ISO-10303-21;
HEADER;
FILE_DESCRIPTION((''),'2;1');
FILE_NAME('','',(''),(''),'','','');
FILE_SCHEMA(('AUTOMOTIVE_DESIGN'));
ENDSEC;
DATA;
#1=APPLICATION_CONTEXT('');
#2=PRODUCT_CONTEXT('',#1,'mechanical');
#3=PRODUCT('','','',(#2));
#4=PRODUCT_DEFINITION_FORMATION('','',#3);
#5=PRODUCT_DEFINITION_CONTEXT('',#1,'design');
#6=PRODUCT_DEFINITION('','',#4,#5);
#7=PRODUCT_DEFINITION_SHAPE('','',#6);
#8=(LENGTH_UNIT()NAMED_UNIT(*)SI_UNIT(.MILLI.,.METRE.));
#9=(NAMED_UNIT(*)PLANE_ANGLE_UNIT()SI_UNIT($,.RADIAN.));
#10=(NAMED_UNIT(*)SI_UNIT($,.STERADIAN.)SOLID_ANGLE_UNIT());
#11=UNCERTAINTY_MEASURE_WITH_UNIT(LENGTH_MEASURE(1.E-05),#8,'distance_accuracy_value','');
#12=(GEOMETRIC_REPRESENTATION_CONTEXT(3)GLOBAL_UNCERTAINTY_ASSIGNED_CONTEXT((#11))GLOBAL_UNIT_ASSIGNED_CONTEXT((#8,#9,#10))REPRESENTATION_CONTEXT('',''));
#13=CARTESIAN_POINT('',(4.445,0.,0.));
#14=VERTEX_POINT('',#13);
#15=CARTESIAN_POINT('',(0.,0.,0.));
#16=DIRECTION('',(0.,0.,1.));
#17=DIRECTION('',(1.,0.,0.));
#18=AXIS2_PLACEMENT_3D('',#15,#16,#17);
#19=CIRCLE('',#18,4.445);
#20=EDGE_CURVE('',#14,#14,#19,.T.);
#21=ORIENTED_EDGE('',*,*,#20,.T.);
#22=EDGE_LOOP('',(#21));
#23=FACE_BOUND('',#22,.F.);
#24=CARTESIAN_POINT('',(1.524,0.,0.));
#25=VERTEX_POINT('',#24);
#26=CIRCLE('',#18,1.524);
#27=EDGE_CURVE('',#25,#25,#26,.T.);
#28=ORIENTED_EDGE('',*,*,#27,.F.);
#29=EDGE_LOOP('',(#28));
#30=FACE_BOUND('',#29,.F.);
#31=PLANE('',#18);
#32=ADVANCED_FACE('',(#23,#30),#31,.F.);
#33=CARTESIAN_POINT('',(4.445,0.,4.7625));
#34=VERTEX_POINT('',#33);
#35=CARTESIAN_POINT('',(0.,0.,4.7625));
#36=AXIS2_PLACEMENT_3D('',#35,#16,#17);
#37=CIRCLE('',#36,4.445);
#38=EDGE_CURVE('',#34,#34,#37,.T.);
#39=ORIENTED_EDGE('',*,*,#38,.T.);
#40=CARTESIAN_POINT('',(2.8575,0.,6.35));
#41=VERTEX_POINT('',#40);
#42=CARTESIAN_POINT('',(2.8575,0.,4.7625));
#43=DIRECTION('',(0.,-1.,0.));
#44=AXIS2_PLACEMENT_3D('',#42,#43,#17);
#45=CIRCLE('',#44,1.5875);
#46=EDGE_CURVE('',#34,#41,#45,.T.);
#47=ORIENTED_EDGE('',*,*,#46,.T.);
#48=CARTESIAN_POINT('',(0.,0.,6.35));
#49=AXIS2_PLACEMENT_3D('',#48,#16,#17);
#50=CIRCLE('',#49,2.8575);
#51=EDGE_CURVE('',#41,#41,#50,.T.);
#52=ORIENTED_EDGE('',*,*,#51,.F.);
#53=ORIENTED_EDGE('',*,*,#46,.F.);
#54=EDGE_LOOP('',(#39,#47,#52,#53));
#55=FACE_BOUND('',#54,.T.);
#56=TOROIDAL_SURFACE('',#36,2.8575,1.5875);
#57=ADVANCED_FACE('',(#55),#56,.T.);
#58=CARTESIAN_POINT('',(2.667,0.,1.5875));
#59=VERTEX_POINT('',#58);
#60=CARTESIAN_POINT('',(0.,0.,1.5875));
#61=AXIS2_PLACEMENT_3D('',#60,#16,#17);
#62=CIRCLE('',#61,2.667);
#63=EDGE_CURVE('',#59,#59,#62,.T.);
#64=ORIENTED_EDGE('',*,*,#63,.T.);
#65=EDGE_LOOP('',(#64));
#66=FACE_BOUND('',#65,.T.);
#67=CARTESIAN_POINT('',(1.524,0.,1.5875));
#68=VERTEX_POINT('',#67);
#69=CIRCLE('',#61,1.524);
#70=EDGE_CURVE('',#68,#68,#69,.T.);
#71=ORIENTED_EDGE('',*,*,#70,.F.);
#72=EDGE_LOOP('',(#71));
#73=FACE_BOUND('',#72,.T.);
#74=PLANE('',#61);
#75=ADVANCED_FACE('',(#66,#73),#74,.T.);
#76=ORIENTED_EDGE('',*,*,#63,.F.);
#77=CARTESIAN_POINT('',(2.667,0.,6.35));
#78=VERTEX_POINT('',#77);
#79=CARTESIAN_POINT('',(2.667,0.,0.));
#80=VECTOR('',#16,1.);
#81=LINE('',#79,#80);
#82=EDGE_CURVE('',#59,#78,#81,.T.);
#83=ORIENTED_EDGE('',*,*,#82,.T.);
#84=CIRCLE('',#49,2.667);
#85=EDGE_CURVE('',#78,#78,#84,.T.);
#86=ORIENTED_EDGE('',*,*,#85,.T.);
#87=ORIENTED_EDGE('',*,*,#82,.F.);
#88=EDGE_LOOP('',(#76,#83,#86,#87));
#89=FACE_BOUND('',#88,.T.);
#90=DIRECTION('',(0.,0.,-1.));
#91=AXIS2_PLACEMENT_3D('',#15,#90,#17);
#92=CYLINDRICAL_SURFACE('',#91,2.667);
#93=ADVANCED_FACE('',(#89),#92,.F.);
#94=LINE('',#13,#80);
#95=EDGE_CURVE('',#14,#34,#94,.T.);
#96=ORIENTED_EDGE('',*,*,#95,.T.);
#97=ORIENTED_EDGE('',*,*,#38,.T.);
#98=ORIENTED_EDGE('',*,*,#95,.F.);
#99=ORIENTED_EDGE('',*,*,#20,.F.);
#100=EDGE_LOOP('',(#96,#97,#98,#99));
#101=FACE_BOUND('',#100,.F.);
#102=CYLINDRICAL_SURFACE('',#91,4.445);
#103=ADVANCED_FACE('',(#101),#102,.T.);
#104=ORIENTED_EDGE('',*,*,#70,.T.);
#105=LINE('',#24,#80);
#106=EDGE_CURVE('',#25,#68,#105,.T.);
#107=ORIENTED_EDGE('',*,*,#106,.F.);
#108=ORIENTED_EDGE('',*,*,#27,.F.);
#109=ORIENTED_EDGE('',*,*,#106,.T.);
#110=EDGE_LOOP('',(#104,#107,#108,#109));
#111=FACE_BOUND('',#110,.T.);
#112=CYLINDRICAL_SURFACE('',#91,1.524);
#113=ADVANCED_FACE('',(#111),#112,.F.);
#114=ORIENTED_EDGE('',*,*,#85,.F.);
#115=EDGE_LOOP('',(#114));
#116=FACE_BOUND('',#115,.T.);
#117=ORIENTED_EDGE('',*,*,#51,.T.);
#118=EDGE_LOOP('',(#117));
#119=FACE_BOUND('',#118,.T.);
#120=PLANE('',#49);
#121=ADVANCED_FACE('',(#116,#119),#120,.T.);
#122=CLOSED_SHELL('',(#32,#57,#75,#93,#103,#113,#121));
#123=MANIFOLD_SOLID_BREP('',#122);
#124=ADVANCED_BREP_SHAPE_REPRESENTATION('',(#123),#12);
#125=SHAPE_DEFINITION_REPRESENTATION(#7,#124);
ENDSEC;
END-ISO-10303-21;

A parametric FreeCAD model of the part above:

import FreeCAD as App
import Part
import Sketcher
Q = App.Units.Quantity


def edges_at(feature, points):
    """Names of the edges that pass closest to the given points."""
    edges = feature.Shape.Edges
    near = lambda p: min(range(len(edges)), key=lambda i: edges[i].distToShape(Part.Vertex(*p))[0])
    return sorted({f"Edge{near(p) + 1}" for p in points})

doc = App.newDocument("Part")
body = doc.addObject("PartDesign::Body", "Body")

# Sketch on XY plane
sketch1 = body.newObject("Sketcher::SketchObject", "Sketch")
sketch1.AttachmentSupport = (doc.getObject("XY_Plane"), [""])
sketch1.MapMode = "FlatFace"
sketch1.addGeometry([
    Part.Circle(App.Vector(0, 0, 0), App.Vector(0, 0, 1), 4.4),
    Part.Circle(App.Vector(0, 0, 0), App.Vector(0, 0, 1), 2.7),
], False)
sketch1.addConstraint([
    Sketcher.Constraint("Coincident", 0, 3, -1, 1),
    Sketcher.Constraint("Coincident", 1, 3, -1, 1),
    Sketcher.Constraint("Diameter", 0, Q("0.35 in")),
    Sketcher.Constraint("Diameter", 1, Q("0.21 in")),
])
pad1 = body.newObject("PartDesign::Pad", "Pad")
pad1.Profile = sketch1
pad1.Length = Q("0.25 in")

# Sketch on XY plane
sketch2 = body.newObject("Sketcher::SketchObject", "Sketch001")
sketch2.AttachmentSupport = (doc.getObject("XY_Plane"), [""])
sketch2.MapMode = "FlatFace"
sketch2.addGeometry([
    Part.Circle(App.Vector(0, 0, 0), App.Vector(0, 0, 1), 2.7),
    Part.Circle(App.Vector(0, 0, 0), App.Vector(0, 0, 1), 1.5),
], False)
sketch2.addConstraint([
    Sketcher.Constraint("Coincident", 0, 3, -1, 1),
    Sketcher.Constraint("Coincident", 1, 3, -1, 1),
    Sketcher.Constraint("Diameter", 0, Q("0.21 in")),
    Sketcher.Constraint("Diameter", 1, Q("0.12 in")),
])
pad2 = body.newObject("PartDesign::Pad", "Pad001")
pad2.Profile = sketch2
pad2.Length = Q("0.0625 in")
doc.recompute()

fillet = body.newObject("PartDesign::Fillet", "Fillet")
fillet.Base = (pad2, edges_at(pad2, [(-4.445, 0, 6.35)]))
fillet.Radius = Q("0.0625 in")

doc.recompute()
